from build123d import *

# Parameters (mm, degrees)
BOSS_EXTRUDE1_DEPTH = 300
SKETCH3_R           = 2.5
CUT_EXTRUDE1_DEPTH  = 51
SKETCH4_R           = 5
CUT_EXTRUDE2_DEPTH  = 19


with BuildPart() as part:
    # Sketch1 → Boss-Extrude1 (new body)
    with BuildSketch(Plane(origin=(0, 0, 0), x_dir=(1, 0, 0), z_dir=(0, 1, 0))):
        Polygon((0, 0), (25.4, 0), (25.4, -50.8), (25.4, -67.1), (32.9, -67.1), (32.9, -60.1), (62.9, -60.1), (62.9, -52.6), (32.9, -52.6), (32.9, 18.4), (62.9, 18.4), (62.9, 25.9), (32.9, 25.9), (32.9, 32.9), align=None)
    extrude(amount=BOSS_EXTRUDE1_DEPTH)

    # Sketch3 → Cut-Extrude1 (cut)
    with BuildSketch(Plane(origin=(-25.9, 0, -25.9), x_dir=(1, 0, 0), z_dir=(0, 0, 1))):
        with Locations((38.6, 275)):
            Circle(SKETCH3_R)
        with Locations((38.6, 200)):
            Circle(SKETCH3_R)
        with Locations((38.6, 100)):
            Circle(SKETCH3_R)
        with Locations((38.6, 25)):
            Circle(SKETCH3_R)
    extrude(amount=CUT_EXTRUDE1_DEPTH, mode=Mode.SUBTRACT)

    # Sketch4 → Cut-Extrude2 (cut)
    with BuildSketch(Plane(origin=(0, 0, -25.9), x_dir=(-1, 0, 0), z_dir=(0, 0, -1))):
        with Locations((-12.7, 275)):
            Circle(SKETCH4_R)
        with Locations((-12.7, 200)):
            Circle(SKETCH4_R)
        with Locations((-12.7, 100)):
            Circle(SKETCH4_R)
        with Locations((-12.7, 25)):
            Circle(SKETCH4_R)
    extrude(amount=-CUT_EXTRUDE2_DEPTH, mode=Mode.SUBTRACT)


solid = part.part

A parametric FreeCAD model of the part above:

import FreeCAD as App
import Part
import Sketcher
from FreeCAD import Vector
Q = App.Units.Quantity

doc = App.newDocument("Part")
body = doc.addObject("PartDesign::Body", "Body")

sketch1 = body.newObject("Sketcher::SketchObject", "Sketch")
sketch1.AttachmentSupport = (doc.getObject("XZ_Plane"), [""])
sketch1.MapMode = "FlatFace"
sketch1.addGeometry(Part.LineSegment(Vector(0, 0, 0), Vector(25.4, 0, 0)), False)
sketch1.addGeometry(Part.LineSegment(Vector(25.4, 0, 0), Vector(25.4, 67.1, 0)), False)
sketch1.addGeometry(Part.LineSegment(Vector(25.4, 67.1, 0), Vector(32.9, 67.1, 0)), False)
sketch1.addGeometry(Part.LineSegment(Vector(32.9, 67.1, 0), Vector(32.9, 60.1, 0)), False)
sketch1.addGeometry(Part.LineSegment(Vector(32.9, 60.1, 0), Vector(62.9, 60.1, 0)), False)
sketch1.addGeometry(Part.LineSegment(Vector(62.9, 60.1, 0), Vector(62.9, 52.6, 0)), False)
sketch1.addGeometry(Part.LineSegment(Vector(62.9, 52.6, 0), Vector(32.9, 52.6, 0)), False)
sketch1.addGeometry(Part.LineSegment(Vector(32.9, 52.6, 0), Vector(32.9, -18.4, 0)), False)
sketch1.addGeometry(Part.LineSegment(Vector(32.9, -18.4, 0), Vector(62.9, -18.4, 0)), False)
sketch1.addGeometry(Part.LineSegment(Vector(62.9, -18.4, 0), Vector(62.9, -25.9, 0)), False)
sketch1.addGeometry(Part.LineSegment(Vector(62.9, -25.9, 0), Vector(32.9, -25.9, 0)), False)
sketch1.addGeometry(Part.LineSegment(Vector(32.9, -25.9, 0), Vector(32.9, -32.9, 0)), False)
sketch1.addGeometry(Part.LineSegment(Vector(32.9, -32.9, 0), Vector(0, 0, 0)), False)
sketch1.addConstraint(Sketcher.Constraint("Coincident", 0, 2, 1, 1))
sketch1.addConstraint(Sketcher.Constraint("Coincident", 1, 2, 2, 1))
sketch1.addConstraint(Sketcher.Constraint("Coincident", 2, 2, 3, 1))
sketch1.addConstraint(Sketcher.Constraint("Coincident", 3, 2, 4, 1))
sketch1.addConstraint(Sketcher.Constraint("Coincident", 4, 2, 5, 1))
sketch1.addConstraint(Sketcher.Constraint("Coincident", 5, 2, 6, 1))
sketch1.addConstraint(Sketcher.Constraint("Coincident", 6, 2, 7, 1))
sketch1.addConstraint(Sketcher.Constraint("Coincident", 7, 2, 8, 1))
sketch1.addConstraint(Sketcher.Constraint("Coincident", 8, 2, 9, 1))
sketch1.addConstraint(Sketcher.Constraint("Coincident", 9, 2, 10, 1))
sketch1.addConstraint(Sketcher.Constraint("Coincident", 10, 2, 11, 1))
sketch1.addConstraint(Sketcher.Constraint("Coincident", 11, 2, 12, 1))
sketch1.addConstraint(Sketcher.Constraint("Coincident", 12, 2, 0, 1))
sketch1.addConstraint(Sketcher.Constraint("Horizontal", 0))
sketch1.addConstraint(Sketcher.Constraint("Vertical", 1))
sketch1.addConstraint(Sketcher.Constraint("Horizontal", 2))
sketch1.addConstraint(Sketcher.Constraint("Vertical", 3))
sketch1.addConstraint(Sketcher.Constraint("Horizontal", 4))
sketch1.addConstraint(Sketcher.Constraint("Vertical", 5))
sketch1.addConstraint(Sketcher.Constraint("Horizontal", 6))
sketch1.addConstraint(Sketcher.Constraint("Vertical", 7))
sketch1.addConstraint(Sketcher.Constraint("Horizontal", 8))
sketch1.addConstraint(Sketcher.Constraint("Vertical", 9))
sketch1.addConstraint(Sketcher.Constraint("Horizontal", 10))
sketch1.addConstraint(Sketcher.Constraint("Vertical", 11))
sketch1.addConstraint(Sketcher.Constraint("Coincident", 12, 2, -1, 1))
sketch1.addConstraint(Sketcher.Constraint("Vertical", 3, 2, 6, 2))
sketch1.addConstraint(Sketcher.Constraint("Vertical", 5, 2, 8, 2))
sketch1.addConstraint(Sketcher.Constraint("Vertical", 7, 2, 10, 2))
sketch1.addConstraint(Sketcher.Constraint("Equal", 2, 5))
sketch1.addConstraint(Sketcher.Constraint("Equal", 5, 9))
sketch1.addConstraint(Sketcher.Constraint("Equal", 3, 11))
sketch1.addConstraint(Sketcher.Constraint("DistanceX", 4, 1, 4, 2, 30.0))
sketch1.addConstraint(Sketcher.Constraint("DistanceY", 3, 2, 3, 1, 7.0))
sketch1.addConstraint(Sketcher.Constraint("DistanceY", 7, 2, 7, 1, 71.0))
sketch1.addConstraint(Sketcher.Constraint("Angle", 12, Q("135 deg")))
sketch1.addConstraint(Sketcher.Constraint("DistanceX", 0, 1, 0, 2, 25.4))
sketch1.addConstraint(Sketcher.Constraint("DistanceX", 2, 1, 2, 2, 7.5))
pad1 = body.newObject("PartDesign::Pad", "Pad")
pad1.Profile = sketch1
pad1.Length = 300
pad1.Reversed = True

sketch2 = body.newObject("Sketcher::SketchObject", "Sketch001")
sketch2.AttachmentSupport = (doc.getObject("XY_Plane"), [""])
sketch2.MapMode = "FlatFace"
sketch2.AttachmentOffset = App.Placement(Vector(0, 0, -25.9), App.Rotation())
sketch2.addGeometry(Part.Circle(Vector(12.7, 275, 0), Vector(0, 0, 1), 2.5), False)
sketch2.addGeometry(Part.Circle(Vector(12.7, 200, 0), Vector(0, 0, 1), 2.5), False)
sketch2.addGeometry(Part.Circle(Vector(12.7, 100, 0), Vector(0, 0, 1), 2.5), False)
sketch2.addGeometry(Part.Circle(Vector(12.7, 25, 0), Vector(0, 0, 1), 2.5), False)
sketch2.addConstraint(Sketcher.Constraint("Equal", 0, 1))
sketch2.addConstraint(Sketcher.Constraint("Equal", 1, 2))
sketch2.addConstraint(Sketcher.Constraint("Equal", 2, 3))
sketch2.addConstraint(Sketcher.Constraint("Vertical", 0, 3, 1, 3))
sketch2.addConstraint(Sketcher.Constraint("Vertical", 1, 3, 2, 3))
sketch2.addConstraint(Sketcher.Constraint("Vertical", 2, 3, 3, 3))
sketch2.addConstraint(Sketcher.Constraint("Diameter", 0, 5.0))
sketch2.addConstraint(Sketcher.Constraint("DistanceY", -1, 1, 0, 3, 275.0))
sketch2.addConstraint(Sketcher.Constraint("DistanceY", -1, 1, 1, 3, 200.0))
sketch2.addConstraint(Sketcher.Constraint("DistanceY", -1, 1, 2, 3, 100.0))
sketch2.addConstraint(Sketcher.Constraint("DistanceY", -1, 1, 3, 3, 25.0))
sketch2.addConstraint(Sketcher.Constraint("DistanceX", -1, 1, 0, 3, 12.7))
pocket1 = body.newObject("PartDesign::Pocket", "Pocket")
pocket1.Profile = sketch2
pocket1.Length = 51
pocket1.Reversed = True

sketch3 = body.newObject("Sketcher::SketchObject", "Sketch002")
sketch3.AttachmentSupport = (doc.getObject("XY_Plane"), [""])
sketch3.MapMode = "FlatFace"
sketch3.AttachmentOffset = App.Placement(Vector(0, 0, -25.9), App.Rotation())
sketch3.addGeometry(Part.Circle(Vector(12.7, 275, 0), Vector(0, 0, 1), 5), False)
sketch3.addGeometry(Part.Circle(Vector(12.7, 200, 0), Vector(0, 0, 1), 5), False)
sketch3.addGeometry(Part.Circle(Vector(12.7, 100, 0), Vector(0, 0, 1), 5), False)
sketch3.addGeometry(Part.Circle(Vector(12.7, 25, 0), Vector(0, 0, 1), 5), False)
sketch3.addConstraint(Sketcher.Constraint("Equal", 0, 1))
sketch3.addConstraint(Sketcher.Constraint("Equal", 1, 2))
sketch3.addConstraint(Sketcher.Constraint("Equal", 2, 3))
sketch3.addConstraint(Sketcher.Constraint("Vertical", 0, 3, 1, 3))
sketch3.addConstraint(Sketcher.Constraint("Vertical", 1, 3, 2, 3))
sketch3.addConstraint(Sketcher.Constraint("Vertical", 2, 3, 3, 3))
sketch3.addConstraint(Sketcher.Constraint("Diameter", 0, 10.0))
sketch3.addConstraint(Sketcher.Constraint("DistanceY", -1, 1, 0, 3, 275.0))
sketch3.addConstraint(Sketcher.Constraint("DistanceY", -1, 1, 1, 3, 200.0))
sketch3.addConstraint(Sketcher.Constraint("DistanceY", -1, 1, 2, 3, 100.0))
sketch3.addConstraint(Sketcher.Constraint("DistanceY", -1, 1, 3, 3, 25.0))
sketch3.addConstraint(Sketcher.Constraint("DistanceX", -1, 1, 0, 3, 12.7))
pocket2 = body.newObject("PartDesign::Pocket", "Pocket001")
pocket2.Profile = sketch3
pocket2.Length = 19
pocket2.Reversed = True

doc.recompute()
